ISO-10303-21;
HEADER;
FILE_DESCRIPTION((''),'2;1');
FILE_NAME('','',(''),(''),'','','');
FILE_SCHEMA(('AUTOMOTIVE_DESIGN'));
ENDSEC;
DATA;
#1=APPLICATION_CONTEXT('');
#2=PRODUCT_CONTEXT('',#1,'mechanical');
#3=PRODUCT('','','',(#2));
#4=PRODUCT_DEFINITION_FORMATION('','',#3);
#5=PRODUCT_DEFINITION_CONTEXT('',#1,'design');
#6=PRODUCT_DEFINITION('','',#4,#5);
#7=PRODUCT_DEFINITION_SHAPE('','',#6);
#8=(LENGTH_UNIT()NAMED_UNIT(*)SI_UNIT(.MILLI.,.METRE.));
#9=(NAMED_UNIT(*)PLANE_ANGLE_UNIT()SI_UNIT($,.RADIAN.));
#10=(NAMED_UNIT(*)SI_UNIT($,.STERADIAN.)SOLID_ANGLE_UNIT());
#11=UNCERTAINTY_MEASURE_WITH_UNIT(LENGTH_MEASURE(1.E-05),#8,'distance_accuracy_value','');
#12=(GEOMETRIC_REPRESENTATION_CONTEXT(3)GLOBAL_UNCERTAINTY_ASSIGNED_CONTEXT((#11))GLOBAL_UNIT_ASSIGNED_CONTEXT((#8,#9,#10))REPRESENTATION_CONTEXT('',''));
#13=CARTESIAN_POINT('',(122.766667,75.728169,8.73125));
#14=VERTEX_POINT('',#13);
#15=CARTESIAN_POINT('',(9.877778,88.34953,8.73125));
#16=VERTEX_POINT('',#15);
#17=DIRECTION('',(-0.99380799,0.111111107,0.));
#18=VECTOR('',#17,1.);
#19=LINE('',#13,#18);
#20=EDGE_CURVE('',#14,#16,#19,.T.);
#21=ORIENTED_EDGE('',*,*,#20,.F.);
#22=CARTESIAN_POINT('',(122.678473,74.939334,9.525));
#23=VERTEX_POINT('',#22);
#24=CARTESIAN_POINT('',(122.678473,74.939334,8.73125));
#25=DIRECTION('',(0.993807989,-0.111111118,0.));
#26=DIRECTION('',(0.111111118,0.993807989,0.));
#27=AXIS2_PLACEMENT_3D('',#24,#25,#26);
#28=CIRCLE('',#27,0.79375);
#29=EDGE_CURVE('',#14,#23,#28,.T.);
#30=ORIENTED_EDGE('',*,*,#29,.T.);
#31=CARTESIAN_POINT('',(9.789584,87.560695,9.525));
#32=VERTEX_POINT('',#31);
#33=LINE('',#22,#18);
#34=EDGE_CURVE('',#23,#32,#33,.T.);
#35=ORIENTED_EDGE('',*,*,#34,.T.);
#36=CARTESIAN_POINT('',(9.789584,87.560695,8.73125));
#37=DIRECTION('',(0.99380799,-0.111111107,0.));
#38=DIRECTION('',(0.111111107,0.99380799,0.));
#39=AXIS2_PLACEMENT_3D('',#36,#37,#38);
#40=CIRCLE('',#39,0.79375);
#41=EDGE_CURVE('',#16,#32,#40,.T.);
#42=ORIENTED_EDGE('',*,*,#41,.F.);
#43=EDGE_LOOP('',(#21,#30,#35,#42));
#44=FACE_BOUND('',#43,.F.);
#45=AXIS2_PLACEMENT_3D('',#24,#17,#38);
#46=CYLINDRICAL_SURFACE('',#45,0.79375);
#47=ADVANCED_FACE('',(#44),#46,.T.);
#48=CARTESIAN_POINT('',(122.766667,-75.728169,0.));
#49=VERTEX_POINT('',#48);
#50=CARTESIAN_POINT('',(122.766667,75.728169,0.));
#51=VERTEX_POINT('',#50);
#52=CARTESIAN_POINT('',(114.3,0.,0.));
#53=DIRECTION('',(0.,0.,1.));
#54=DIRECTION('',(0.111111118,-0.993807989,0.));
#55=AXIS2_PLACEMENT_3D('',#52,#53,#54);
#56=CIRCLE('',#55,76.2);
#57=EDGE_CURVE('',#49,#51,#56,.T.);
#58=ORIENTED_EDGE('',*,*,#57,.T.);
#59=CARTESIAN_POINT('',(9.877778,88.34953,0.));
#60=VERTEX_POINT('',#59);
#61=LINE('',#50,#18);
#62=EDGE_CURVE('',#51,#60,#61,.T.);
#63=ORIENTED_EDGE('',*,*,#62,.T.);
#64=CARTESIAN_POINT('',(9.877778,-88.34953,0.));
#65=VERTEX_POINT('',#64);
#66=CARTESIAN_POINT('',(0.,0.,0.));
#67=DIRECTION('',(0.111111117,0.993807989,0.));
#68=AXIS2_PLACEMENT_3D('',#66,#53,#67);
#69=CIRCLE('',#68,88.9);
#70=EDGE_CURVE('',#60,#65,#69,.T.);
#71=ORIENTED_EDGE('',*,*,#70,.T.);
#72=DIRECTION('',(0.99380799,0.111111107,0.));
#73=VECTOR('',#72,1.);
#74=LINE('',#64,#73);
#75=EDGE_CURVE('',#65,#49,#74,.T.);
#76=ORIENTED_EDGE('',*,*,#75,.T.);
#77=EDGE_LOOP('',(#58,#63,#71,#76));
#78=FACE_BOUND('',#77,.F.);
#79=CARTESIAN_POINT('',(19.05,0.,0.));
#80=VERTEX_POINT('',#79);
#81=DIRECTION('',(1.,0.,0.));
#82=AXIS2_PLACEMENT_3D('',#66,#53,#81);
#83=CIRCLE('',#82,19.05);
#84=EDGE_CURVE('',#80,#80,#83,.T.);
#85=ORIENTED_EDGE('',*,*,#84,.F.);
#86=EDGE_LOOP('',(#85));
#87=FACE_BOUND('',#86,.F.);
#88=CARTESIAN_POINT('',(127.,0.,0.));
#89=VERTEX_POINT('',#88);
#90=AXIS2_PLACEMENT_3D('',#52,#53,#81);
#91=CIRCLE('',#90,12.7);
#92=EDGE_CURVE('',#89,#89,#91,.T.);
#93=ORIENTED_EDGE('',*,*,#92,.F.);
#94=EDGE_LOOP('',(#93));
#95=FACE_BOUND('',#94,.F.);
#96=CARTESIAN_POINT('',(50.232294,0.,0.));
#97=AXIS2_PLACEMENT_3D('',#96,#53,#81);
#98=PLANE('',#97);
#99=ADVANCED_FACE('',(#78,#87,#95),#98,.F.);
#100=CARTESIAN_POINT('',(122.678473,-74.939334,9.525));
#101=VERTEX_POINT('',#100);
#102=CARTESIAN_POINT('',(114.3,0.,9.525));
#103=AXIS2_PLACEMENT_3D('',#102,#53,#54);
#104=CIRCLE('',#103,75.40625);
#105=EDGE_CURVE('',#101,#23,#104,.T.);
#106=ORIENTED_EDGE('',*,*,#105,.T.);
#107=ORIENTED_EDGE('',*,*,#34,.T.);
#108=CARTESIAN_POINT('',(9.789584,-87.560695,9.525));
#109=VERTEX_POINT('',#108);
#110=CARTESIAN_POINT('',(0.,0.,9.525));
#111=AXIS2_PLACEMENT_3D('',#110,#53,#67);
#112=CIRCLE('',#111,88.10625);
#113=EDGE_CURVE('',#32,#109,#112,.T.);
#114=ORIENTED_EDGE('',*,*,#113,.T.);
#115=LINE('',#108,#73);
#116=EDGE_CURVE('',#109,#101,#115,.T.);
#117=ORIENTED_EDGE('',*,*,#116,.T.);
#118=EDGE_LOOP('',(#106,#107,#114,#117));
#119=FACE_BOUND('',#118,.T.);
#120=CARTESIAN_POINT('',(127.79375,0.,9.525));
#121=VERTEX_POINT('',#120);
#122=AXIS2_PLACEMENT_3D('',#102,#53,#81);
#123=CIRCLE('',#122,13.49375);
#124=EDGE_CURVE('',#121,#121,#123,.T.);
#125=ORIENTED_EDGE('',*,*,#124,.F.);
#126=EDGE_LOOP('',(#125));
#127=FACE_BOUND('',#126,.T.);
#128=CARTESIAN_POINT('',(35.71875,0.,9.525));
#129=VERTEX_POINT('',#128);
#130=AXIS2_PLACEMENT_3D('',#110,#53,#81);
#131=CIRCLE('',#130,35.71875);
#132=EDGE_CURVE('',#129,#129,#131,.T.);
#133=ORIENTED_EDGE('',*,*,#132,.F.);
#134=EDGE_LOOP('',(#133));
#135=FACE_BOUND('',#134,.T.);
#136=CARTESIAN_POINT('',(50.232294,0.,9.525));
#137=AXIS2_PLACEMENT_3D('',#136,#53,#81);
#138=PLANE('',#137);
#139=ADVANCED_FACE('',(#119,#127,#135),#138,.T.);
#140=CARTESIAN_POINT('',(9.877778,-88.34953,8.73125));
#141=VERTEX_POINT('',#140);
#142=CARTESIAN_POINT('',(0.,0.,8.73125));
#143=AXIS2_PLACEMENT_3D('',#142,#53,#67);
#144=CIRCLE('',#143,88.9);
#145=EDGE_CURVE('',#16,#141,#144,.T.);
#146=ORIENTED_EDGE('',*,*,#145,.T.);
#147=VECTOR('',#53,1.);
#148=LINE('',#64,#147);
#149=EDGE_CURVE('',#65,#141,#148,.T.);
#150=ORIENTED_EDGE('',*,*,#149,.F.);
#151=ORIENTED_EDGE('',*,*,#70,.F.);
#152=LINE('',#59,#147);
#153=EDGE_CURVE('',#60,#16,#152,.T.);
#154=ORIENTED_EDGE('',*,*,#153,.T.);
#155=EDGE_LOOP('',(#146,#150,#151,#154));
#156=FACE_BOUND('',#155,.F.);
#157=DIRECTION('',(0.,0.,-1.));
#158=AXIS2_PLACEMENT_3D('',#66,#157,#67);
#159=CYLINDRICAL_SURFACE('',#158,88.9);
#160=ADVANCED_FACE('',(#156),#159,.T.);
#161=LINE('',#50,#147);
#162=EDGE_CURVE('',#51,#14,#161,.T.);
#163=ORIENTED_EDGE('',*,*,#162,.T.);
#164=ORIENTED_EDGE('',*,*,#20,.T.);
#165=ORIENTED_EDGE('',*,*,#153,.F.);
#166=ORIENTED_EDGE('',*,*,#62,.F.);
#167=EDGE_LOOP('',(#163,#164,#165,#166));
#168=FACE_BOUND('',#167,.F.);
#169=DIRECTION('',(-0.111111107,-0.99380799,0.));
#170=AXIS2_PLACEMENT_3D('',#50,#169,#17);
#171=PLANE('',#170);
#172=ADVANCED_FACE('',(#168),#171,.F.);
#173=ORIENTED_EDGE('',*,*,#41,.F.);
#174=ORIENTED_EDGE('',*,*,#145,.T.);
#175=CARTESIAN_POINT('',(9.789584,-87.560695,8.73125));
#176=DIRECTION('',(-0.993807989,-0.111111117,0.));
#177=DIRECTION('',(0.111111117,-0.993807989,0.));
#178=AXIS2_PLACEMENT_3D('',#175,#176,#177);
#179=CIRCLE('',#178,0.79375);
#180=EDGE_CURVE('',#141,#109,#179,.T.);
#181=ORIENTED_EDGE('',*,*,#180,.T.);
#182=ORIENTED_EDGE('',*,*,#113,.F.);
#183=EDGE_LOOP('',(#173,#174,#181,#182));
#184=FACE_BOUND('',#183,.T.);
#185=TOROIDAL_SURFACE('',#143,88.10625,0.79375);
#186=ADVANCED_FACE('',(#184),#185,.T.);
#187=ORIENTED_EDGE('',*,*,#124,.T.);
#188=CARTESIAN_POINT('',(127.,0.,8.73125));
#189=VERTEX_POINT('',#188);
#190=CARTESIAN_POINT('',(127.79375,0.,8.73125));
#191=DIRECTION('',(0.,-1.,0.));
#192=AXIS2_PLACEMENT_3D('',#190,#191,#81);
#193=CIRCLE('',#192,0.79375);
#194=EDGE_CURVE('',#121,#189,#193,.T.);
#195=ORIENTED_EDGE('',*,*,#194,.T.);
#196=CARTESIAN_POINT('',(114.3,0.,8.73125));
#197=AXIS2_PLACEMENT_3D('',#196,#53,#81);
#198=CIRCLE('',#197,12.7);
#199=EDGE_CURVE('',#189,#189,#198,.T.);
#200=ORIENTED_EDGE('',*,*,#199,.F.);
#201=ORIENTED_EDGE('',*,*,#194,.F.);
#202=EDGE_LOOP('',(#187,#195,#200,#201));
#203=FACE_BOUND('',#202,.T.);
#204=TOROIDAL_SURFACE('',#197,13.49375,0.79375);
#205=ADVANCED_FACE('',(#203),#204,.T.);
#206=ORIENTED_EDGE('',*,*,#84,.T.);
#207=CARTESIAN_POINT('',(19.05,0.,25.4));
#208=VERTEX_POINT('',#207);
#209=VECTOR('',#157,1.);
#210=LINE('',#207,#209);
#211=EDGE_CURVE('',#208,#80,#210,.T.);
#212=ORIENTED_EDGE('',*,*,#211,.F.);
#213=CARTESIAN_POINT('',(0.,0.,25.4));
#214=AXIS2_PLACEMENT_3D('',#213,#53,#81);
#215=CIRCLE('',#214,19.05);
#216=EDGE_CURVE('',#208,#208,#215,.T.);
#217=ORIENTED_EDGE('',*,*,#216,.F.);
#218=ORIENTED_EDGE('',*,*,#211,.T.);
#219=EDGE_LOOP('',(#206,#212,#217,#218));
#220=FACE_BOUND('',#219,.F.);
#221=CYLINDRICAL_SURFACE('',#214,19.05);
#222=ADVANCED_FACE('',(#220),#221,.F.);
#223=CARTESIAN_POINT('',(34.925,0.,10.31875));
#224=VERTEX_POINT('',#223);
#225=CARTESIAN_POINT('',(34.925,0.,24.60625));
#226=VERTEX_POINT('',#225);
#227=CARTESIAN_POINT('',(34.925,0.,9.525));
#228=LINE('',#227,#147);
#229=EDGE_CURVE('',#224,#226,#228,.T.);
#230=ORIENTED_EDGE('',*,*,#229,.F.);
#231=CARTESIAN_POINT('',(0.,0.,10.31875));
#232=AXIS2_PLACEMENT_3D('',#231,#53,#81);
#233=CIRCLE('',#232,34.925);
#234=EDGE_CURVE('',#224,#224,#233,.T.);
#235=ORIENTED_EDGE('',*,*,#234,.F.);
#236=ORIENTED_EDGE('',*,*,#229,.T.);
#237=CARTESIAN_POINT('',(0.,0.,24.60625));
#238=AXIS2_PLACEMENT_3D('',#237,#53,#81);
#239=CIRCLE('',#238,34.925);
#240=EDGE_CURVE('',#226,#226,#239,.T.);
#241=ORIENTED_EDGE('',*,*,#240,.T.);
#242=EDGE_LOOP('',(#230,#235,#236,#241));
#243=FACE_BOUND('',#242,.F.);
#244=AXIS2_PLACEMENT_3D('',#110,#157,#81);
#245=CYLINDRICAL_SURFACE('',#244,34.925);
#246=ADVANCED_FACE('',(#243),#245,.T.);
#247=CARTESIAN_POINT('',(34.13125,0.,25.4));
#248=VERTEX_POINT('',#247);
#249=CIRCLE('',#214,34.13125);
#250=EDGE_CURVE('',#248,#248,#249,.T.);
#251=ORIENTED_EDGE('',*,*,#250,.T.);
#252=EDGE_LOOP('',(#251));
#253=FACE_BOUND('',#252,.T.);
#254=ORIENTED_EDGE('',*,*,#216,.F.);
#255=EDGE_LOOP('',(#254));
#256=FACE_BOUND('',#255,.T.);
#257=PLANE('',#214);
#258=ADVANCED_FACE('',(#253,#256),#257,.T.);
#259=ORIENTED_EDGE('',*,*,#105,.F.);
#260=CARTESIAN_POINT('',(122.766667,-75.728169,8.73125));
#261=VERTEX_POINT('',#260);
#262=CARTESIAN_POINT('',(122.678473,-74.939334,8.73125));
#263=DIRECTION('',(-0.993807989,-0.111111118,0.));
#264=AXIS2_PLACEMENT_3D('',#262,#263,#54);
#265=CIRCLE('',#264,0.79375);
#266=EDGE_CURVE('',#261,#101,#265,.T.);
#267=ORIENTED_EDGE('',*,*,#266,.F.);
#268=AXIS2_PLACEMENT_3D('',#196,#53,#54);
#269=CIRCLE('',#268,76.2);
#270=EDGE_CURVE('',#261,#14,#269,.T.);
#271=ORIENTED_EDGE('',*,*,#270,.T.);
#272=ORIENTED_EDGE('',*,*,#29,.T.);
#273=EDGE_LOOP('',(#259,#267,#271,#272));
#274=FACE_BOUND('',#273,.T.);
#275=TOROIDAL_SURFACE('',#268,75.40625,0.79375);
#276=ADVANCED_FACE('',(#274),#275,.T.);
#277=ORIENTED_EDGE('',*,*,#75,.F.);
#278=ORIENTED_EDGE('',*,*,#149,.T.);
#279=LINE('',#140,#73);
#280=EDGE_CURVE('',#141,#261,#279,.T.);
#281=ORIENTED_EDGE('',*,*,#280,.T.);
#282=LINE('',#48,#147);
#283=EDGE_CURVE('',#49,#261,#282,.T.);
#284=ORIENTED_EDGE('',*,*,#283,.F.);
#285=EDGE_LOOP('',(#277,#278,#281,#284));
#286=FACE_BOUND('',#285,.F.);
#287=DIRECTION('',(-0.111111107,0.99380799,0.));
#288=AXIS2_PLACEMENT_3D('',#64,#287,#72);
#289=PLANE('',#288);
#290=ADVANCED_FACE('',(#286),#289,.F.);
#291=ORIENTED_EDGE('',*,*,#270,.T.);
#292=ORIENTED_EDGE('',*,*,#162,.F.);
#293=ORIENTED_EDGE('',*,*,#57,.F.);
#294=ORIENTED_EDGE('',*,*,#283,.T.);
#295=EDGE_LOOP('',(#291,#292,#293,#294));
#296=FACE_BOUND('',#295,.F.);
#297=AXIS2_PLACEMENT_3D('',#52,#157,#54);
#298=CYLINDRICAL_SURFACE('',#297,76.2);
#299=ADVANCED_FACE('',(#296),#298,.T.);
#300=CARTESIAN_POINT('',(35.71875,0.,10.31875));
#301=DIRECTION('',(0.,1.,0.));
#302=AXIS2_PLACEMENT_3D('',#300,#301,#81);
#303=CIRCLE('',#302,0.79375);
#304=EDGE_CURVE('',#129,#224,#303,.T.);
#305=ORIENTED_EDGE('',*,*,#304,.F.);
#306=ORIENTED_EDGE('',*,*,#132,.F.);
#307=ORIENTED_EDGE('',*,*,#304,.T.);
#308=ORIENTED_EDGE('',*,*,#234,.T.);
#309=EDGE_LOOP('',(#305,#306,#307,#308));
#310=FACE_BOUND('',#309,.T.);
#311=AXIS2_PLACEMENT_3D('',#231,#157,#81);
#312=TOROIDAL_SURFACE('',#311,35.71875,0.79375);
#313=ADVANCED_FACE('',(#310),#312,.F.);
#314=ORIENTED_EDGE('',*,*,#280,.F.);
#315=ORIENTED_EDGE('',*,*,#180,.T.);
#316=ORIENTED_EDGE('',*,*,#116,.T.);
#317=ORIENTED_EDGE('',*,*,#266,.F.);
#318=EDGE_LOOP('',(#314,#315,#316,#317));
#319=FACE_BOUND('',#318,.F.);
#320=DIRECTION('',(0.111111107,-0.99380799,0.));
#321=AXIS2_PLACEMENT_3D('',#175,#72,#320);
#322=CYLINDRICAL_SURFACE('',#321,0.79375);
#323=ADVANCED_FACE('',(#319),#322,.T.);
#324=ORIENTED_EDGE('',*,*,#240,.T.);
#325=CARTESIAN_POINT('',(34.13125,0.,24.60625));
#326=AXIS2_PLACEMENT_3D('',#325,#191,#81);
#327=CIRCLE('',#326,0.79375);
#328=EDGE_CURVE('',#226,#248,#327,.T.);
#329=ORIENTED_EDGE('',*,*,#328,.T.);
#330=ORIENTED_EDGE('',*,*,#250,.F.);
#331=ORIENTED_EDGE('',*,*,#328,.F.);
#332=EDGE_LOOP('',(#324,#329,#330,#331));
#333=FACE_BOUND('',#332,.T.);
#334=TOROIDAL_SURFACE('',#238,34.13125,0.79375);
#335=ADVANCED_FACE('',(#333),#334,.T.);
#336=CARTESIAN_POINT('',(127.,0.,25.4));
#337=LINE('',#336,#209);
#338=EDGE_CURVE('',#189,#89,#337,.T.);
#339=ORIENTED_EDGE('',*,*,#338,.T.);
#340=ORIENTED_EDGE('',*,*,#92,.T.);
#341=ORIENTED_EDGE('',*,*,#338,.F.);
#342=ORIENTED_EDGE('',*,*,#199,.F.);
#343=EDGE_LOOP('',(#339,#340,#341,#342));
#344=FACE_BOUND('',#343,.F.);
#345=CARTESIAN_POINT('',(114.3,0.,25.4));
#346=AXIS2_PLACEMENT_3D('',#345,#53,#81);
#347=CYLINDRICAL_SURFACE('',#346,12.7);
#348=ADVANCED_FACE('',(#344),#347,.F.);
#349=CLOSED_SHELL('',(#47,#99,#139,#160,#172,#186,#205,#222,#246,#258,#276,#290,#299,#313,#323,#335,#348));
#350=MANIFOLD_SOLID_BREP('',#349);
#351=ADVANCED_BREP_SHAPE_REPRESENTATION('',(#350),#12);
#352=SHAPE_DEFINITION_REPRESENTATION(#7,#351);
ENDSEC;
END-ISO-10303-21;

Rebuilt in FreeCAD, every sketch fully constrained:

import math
import FreeCAD as App
import Part
import Sketcher
from FreeCAD import Vector
Q = App.Units.Quantity


def edges_at(feature, points):
    """Names of the edges that pass closest to the given points."""
    edges = feature.Shape.Edges
    near = lambda p: min(range(len(edges)), key=lambda i: edges[i].distToShape(Part.Vertex(*p))[0])
    return sorted({f"Edge{near(p) + 1}" for p in points})

doc = App.newDocument("Part")
body = doc.addObject("PartDesign::Body", "Body")

# Sketch on XY plane
sketch1 = body.newObject("Sketcher::SketchObject", "Sketch")
sketch1.AttachmentSupport = (doc.getObject("XY_Plane"), [""])
sketch1.MapMode = "FlatFace"
sketch1.addGeometry([
    Part.LineSegment(Vector(123, 76, 0), Vector(10, 88, 0)),
    Part.ArcOfCircle(Part.Circle(Vector(0, 0, 0), Vector(0, 0, 1), 89), math.radians(84), math.radians(276)),
    Part.LineSegment(Vector(10, -88, 0), Vector(123, -76, 0)),
    Part.ArcOfCircle(Part.Circle(Vector(114, 0, 0), Vector(0, 0, 1), 76), math.radians(-84), math.radians(84)),
], False)
sketch1.addConstraint([
    Sketcher.Constraint("Tangent", 0, 2, 1, 1),
    Sketcher.Constraint("Tangent", 1, 2, 2, 1),
    Sketcher.Constraint("Tangent", 2, 2, 3, 1),
    Sketcher.Constraint("Tangent", 3, 2, 0, 1),
    Sketcher.Constraint("Coincident", 1, 3, -1, 1),
    Sketcher.Constraint("PointOnObject", 3, 3, -1),
    Sketcher.Constraint("Radius", 3, Q("3 in")),
    Sketcher.Constraint("Radius", 1, Q("3.5 in")),
    Sketcher.Constraint("DistanceX", -1, 1, 3, 3, Q("4.5 in")),
])
pad1 = body.newObject("PartDesign::Pad", "Pad")
pad1.Profile = sketch1
pad1.Length = Q("0.375 in")

# Sketch on XY plane
sketch2 = body.newObject("Sketcher::SketchObject", "Sketch001")
sketch2.AttachmentSupport = (doc.getObject("XY_Plane"), [""])
sketch2.MapMode = "FlatFace"
sketch2.AttachmentOffset = App.Placement(Vector(0, 0, 0.375 * 25.4), App.Rotation())
sketch2.addGeometry(Part.Circle(Vector(0, 0, 0), Vector(0, 0, 1), 35), False)
sketch2.addConstraint([
    Sketcher.Constraint("Coincident", 0, 3, -1, 1),
    Sketcher.Constraint("Diameter", 0, Q("2.75 in")),
])
pad2 = body.newObject("PartDesign::Pad", "Pad001")
pad2.Profile = sketch2
pad2.Length = Q("0.625 in")

# Sketch on XY plane
sketch3 = body.newObject("Sketcher::SketchObject", "Sketch002")
sketch3.AttachmentSupport = (doc.getObject("XY_Plane"), [""])
sketch3.MapMode = "FlatFace"
sketch3.AttachmentOffset = App.Placement(Vector(0, 0, 1 * 25.4), App.Rotation())
sketch3.addGeometry([
    Part.Circle(Vector(0, 0, 0), Vector(0, 0, 1), 19),
    Part.Circle(Vector(114, 0, 0), Vector(0, 0, 1), 13),
], False)
sketch3.addConstraint([
    Sketcher.Constraint("Coincident", 0, 3, -1, 1),
    Sketcher.Constraint("PointOnObject", 1, 3, -1),
    Sketcher.Constraint("Diameter", 1, Q("1 in")),
    Sketcher.Constraint("Diameter", 0, Q("1.5 in")),
    Sketcher.Constraint("DistanceX", -1, 1, 1, 3, Q("4.5 in")),
])
pocket1 = body.newObject("PartDesign::Pocket", "Pocket")
pocket1.Profile = sketch3
pocket1.Type = "ThroughAll"
doc.recompute()

fillet = body.newObject("PartDesign::Fillet", "Fillet")
fillet.Base = (pocket1, edges_at(pocket1, [
    (-34.925, 0, 9.525),
    (-34.925, 0, 25.4),
    (190.5, 0, 9.525),
    (66.322, -82.039, 9.525),
    (-88.9, 0, 9.525),
    (66.322, 82.039, 9.525),
    (101.6, 0, 9.525),
]))
fillet.Radius = Q("0.03125 in")

doc.recompute()
